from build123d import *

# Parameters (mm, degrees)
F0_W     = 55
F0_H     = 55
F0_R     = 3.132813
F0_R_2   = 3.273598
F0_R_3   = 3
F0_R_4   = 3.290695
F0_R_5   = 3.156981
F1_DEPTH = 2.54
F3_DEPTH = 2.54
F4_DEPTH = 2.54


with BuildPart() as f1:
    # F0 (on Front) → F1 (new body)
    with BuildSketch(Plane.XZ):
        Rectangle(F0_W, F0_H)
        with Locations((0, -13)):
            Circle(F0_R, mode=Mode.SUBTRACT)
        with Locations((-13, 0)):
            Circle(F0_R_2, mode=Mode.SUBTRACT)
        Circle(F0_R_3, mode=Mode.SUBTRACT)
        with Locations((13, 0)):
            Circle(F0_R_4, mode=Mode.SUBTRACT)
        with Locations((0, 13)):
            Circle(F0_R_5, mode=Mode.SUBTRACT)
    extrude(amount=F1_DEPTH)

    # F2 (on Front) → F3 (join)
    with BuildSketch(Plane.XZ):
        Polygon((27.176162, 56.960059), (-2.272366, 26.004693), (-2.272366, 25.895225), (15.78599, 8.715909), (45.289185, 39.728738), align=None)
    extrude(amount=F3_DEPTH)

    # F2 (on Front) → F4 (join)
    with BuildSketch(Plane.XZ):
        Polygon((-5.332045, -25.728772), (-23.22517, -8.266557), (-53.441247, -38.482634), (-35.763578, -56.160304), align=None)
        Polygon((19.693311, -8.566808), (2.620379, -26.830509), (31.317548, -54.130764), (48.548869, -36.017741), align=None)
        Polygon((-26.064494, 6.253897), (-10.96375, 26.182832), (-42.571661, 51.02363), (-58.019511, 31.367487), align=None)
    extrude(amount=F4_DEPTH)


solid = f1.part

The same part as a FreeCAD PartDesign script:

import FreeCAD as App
import Part
import Sketcher

V = App.Vector
Q = App.Units.Quantity

doc = App.newDocument("Part")
params = doc.addObject("Spreadsheet::Sheet", "Params")
for row, (alias, value) in enumerate([
    ("sketch1_diameter", "6 mm"),
    ("sketch1_width", "55 mm"),
    ("pad1_length", "2.54 mm"),
    ("sketch2_length", "25.000001 mm"),
    ("pad2_length", "2.54 mm"),
    ("sketch3_length", "25 mm"),
    ("pad3_length", "2.54 mm"),
], start=1):
    params.set(f"A{row}", alias)
    params.set(f"B{row}", "=" + value)
    params.setAlias(f"B{row}", alias)

body = doc.addObject("PartDesign::Body", "Body")

# Sketch on XZ plane
sketch1 = body.newObject("Sketcher::SketchObject", "Sketch")
sketch1.AttachmentSupport = (doc.getObject("XZ_Plane"), [""])
sketch1.MapMode = "FlatFace"
sketch1.addGeometry([
    Part.LineSegment(V(-27.5, 27.5, 0), V(-27.5, -27.5, 0)),  # 0
    Part.LineSegment(V(-27.5, -27.5, 0), V(27.5, -27.5, 0)),  # 1
    Part.LineSegment(V(27.5, -27.5, 0), V(27.5, 27.5, 0)),  # 2
    Part.LineSegment(V(27.5, 27.5, 0), V(-27.5, 27.5, 0)),  # 3
    Part.Circle(V(0, -13, 0), V(0, 0, 1), 3.1),  # 4
    Part.Circle(V(-13, 0, 0), V(0, 0, 1), 3.3),  # 5
    Part.Circle(V(0, 0, 0), V(0, 0, 1), 3),  # 6
    Part.Circle(V(13, 0, 0), V(0, 0, 1), 3.3),  # 7
    Part.Circle(V(0, 13, 0), V(0, 0, 1), 3.2),  # 8
], False)
sketch1.addConstraint([
    Sketcher.Constraint("Coincident", 0, 2, 1, 1),
    Sketcher.Constraint("Coincident", 1, 2, 2, 1),
    Sketcher.Constraint("Coincident", 2, 2, 3, 1),
    Sketcher.Constraint("Coincident", 3, 2, 0, 1),
    Sketcher.Constraint("Vertical", 0),
    Sketcher.Constraint("Horizontal", 1),
    Sketcher.Constraint("Vertical", 2),
    Sketcher.Constraint("Horizontal", 3),
    Sketcher.Constraint("Coincident", 6, 3, -1, 1),
    Sketcher.Constraint("Symmetric", 5, 3, 7, 3, -1, 1),
    Sketcher.Constraint("Symmetric", 4, 3, 8, 3, -1, 1),
    Sketcher.Constraint("Symmetric", 0, 2, 2, 2, -1, 1),
    Sketcher.Constraint("PointOnObject", 4, 3, -2),
    Sketcher.Constraint("PointOnObject", 5, 3, -1),
    Sketcher.Constraint("Equal", 3, 0),
    Sketcher.Constraint("Diameter", 6, Q("6 mm")),
    Sketcher.Constraint("DistanceX", 1, 1, 1, 2, Q("55 mm")),
    Sketcher.Constraint("DistanceY", 4, 3, -1, 1, Q("13 mm")),
    Sketcher.Constraint("DistanceX", 5, 3, -1, 1, Q("13 mm")),
    Sketcher.Constraint("Diameter", 7, Q("6.58139 mm")),
    Sketcher.Constraint("Diameter", 4, Q("6.265626 mm")),
    Sketcher.Constraint("Diameter", 5, Q("6.547196 mm")),
    Sketcher.Constraint("Diameter", 8, Q("6.313962 mm")),
])
sketch1.setExpression("Constraints[15]", "Params.sketch1_diameter")
sketch1.setExpression("Constraints[16]", "Params.sketch1_width")
pad1 = body.newObject("PartDesign::Pad", "Pad")
pad1.Profile = sketch1
pad1.setExpression("Length", "Params.pad1_length")

# Sketch on XZ plane
sketch2 = body.newObject("Sketcher::SketchObject", "Sketch001")
sketch2.AttachmentSupport = (doc.getObject("XZ_Plane"), [""])
sketch2.MapMode = "FlatFace"
sketch2.addGeometry([
    Part.LineSegment(V(27.18, 56.96, 0), V(-2.27, 26, 0)),  # 0
    Part.LineSegment(V(-2.27, 26, 0), V(-2.27, 25.9, 0)),  # 1
    Part.LineSegment(V(-2.27, 25.9, 0), V(15.79, 8.72, 0)),  # 2
    Part.LineSegment(V(15.79, 8.72, 0), V(45.29, 39.73, 0)),  # 3
    Part.LineSegment(V(45.29, 39.73, 0), V(27.18, 56.96, 0)),  # 4
], False)
sketch2.addConstraint([
    Sketcher.Constraint("Coincident", 0, 2, 1, 1),
    Sketcher.Constraint("Coincident", 1, 2, 2, 1),
    Sketcher.Constraint("Coincident", 2, 2, 3, 1),
    Sketcher.Constraint("Coincident", 3, 2, 4, 1),
    Sketcher.Constraint("Coincident", 4, 2, 0, 1),
    Sketcher.Constraint("Vertical", 1),
    Sketcher.Constraint("Perpendicular", 0, 2),
    Sketcher.Constraint("Perpendicular", 2, 3),
    Sketcher.Constraint("Perpendicular", 3, 4),
    Sketcher.Constraint("Distance", 4, Q("25.000001 mm")),
    Sketcher.Constraint("Distance", 0, Q("42.725291 mm")),
    Sketcher.Constraint("Distance", 2, Q("24.924549 mm")),
    Sketcher.Constraint("DistanceX", -1, 1, 2, 2, Q("15.78599 mm")),
    Sketcher.Constraint("DistanceY", -1, 1, 2, 2, Q("8.715909 mm")),
    Sketcher.Constraint("DistanceY", -1, 1, 4, 2, Q("56.960059 mm")),
])
sketch2.setExpression("Constraints[9]", "Params.sketch2_length")
pad2 = body.newObject("PartDesign::Pad", "Pad001")
pad2.Profile = sketch2
pad2.setExpression("Length", "Params.pad2_length")

# Sketch on XZ plane
sketch3 = body.newObject("Sketcher::SketchObject", "Sketch002")
sketch3.AttachmentSupport = (doc.getObject("XZ_Plane"), [""])
sketch3.MapMode = "FlatFace"
sketch3.addGeometry([
    Part.LineSegment(V(-5.332045, -25.728772, 0), V(-23.22517, -8.266557, 0)),  # 0
    Part.LineSegment(V(-23.22517, -8.266557, 0), V(-53.441247, -38.482634, 0)),  # 1
    Part.LineSegment(V(-53.441247, -38.482634, 0), V(-35.763578, -56.160304, 0)),  # 2
    Part.LineSegment(V(-35.763578, -56.160304, 0), V(-5.332045, -25.728772, 0)),  # 3
    Part.LineSegment(V(19.693311, -8.566808, 0), V(2.620379, -26.830509, 0)),  # 4
    Part.LineSegment(V(2.620379, -26.830509, 0), V(31.317548, -54.130764, 0)),  # 5
    Part.LineSegment(V(31.317548, -54.130764, 0), V(48.548869, -36.017741, 0)),  # 6
    Part.LineSegment(V(48.548869, -36.017741, 0), V(19.693311, -8.566808, 0)),  # 7
    Part.LineSegment(V(-26.064494, 6.253897, 0), V(-10.96375, 26.182832, 0)),  # 8
    Part.LineSegment(V(-10.96375, 26.182832, 0), V(-42.571661, 51.02363, 0)),  # 9
    Part.LineSegment(V(-42.571661, 51.02363, 0), V(-58.019511, 31.367487, 0)),  # 10
    Part.LineSegment(V(-58.019511, 31.367487, 0), V(-26.064494, 6.253897, 0)),  # 11
], False)
sketch3.addConstraint([
    Sketcher.Constraint("Coincident", 0, 2, 1, 1),
    Sketcher.Constraint("Coincident", 1, 2, 2, 1),
    Sketcher.Constraint("Coincident", 2, 2, 3, 1),
    Sketcher.Constraint("Coincident", 3, 2, 0, 1),
    Sketcher.Constraint("Coincident", 4, 2, 5, 1),
    Sketcher.Constraint("Coincident", 5, 2, 6, 1),
    Sketcher.Constraint("Coincident", 6, 2, 7, 1),
    Sketcher.Constraint("Coincident", 7, 2, 4, 1),
    Sketcher.Constraint("Coincident", 8, 2, 9, 1),
    Sketcher.Constraint("Coincident", 9, 2, 10, 1),
    Sketcher.Constraint("Coincident", 10, 2, 11, 1),
    Sketcher.Constraint("Coincident", 11, 2, 8, 1),
    Sketcher.Constraint("Perpendicular", 1, 2),
    Sketcher.Constraint("Perpendicular", 2, 3),
    Sketcher.Constraint("Perpendicular", 5, 6),
    Sketcher.Constraint("Perpendicular", 6, 7),
    Sketcher.Constraint("Perpendicular", 9, 10),
    Sketcher.Constraint("Perpendicular", 10, 11),
    Sketcher.Constraint("Equal", 2, 6),
    Sketcher.Constraint("Equal", 6, 10),
    Sketcher.Constraint("Angle", 1, Q("-135 deg")),
    Sketcher.Constraint("Distance", 2, Q("25 mm")),
    Sketcher.Constraint("Angle", 4, Q("-133.069985 deg")),
    Sketcher.Constraint("Distance", 8, Q("25.003898 mm")),
    Sketcher.Constraint("DistanceX", 1, 2, 3, 2, Q("48.109202 mm")),
    Sketcher.Constraint("DistanceY", 3, 2, 9, 2, Q("76.752402 mm")),
    Sketcher.Constraint("Distance", 7, Q("39.827088 mm")),
    Sketcher.Constraint("Distance", 9, Q("40.201061 mm")),
    Sketcher.Constraint("DistanceX", 0, 2, -1, 1, Q("23.22517 mm")),
    Sketcher.Constraint("DistanceX", 2, 2, -1, 1, Q("35.763578 mm")),
    Sketcher.Constraint("DistanceY", 3, 2, -1, 1, Q("25.728772 mm")),
    Sketcher.Constraint("DistanceX", -1, 1, 4, 2, Q("2.620379 mm")),
    Sketcher.Constraint("DistanceY", 4, 2, -1, 1, Q("26.830509 mm")),
    Sketcher.Constraint("DistanceX", -1, 1, 6, 2, Q("48.548869 mm")),
    Sketcher.Constraint("DistanceX", 8, 2, -1, 1, Q("10.96375 mm")),
    Sketcher.Constraint("DistanceX", 9, 2, -1, 1, Q("42.571661 mm")),
])
sketch3.setExpression("Constraints[21]", "Params.sketch3_length")
pad3 = body.newObject("PartDesign::Pad", "Pad002")
pad3.Profile = sketch3
pad3.setExpression("Length", "Params.pad3_length")

doc.recompute()
